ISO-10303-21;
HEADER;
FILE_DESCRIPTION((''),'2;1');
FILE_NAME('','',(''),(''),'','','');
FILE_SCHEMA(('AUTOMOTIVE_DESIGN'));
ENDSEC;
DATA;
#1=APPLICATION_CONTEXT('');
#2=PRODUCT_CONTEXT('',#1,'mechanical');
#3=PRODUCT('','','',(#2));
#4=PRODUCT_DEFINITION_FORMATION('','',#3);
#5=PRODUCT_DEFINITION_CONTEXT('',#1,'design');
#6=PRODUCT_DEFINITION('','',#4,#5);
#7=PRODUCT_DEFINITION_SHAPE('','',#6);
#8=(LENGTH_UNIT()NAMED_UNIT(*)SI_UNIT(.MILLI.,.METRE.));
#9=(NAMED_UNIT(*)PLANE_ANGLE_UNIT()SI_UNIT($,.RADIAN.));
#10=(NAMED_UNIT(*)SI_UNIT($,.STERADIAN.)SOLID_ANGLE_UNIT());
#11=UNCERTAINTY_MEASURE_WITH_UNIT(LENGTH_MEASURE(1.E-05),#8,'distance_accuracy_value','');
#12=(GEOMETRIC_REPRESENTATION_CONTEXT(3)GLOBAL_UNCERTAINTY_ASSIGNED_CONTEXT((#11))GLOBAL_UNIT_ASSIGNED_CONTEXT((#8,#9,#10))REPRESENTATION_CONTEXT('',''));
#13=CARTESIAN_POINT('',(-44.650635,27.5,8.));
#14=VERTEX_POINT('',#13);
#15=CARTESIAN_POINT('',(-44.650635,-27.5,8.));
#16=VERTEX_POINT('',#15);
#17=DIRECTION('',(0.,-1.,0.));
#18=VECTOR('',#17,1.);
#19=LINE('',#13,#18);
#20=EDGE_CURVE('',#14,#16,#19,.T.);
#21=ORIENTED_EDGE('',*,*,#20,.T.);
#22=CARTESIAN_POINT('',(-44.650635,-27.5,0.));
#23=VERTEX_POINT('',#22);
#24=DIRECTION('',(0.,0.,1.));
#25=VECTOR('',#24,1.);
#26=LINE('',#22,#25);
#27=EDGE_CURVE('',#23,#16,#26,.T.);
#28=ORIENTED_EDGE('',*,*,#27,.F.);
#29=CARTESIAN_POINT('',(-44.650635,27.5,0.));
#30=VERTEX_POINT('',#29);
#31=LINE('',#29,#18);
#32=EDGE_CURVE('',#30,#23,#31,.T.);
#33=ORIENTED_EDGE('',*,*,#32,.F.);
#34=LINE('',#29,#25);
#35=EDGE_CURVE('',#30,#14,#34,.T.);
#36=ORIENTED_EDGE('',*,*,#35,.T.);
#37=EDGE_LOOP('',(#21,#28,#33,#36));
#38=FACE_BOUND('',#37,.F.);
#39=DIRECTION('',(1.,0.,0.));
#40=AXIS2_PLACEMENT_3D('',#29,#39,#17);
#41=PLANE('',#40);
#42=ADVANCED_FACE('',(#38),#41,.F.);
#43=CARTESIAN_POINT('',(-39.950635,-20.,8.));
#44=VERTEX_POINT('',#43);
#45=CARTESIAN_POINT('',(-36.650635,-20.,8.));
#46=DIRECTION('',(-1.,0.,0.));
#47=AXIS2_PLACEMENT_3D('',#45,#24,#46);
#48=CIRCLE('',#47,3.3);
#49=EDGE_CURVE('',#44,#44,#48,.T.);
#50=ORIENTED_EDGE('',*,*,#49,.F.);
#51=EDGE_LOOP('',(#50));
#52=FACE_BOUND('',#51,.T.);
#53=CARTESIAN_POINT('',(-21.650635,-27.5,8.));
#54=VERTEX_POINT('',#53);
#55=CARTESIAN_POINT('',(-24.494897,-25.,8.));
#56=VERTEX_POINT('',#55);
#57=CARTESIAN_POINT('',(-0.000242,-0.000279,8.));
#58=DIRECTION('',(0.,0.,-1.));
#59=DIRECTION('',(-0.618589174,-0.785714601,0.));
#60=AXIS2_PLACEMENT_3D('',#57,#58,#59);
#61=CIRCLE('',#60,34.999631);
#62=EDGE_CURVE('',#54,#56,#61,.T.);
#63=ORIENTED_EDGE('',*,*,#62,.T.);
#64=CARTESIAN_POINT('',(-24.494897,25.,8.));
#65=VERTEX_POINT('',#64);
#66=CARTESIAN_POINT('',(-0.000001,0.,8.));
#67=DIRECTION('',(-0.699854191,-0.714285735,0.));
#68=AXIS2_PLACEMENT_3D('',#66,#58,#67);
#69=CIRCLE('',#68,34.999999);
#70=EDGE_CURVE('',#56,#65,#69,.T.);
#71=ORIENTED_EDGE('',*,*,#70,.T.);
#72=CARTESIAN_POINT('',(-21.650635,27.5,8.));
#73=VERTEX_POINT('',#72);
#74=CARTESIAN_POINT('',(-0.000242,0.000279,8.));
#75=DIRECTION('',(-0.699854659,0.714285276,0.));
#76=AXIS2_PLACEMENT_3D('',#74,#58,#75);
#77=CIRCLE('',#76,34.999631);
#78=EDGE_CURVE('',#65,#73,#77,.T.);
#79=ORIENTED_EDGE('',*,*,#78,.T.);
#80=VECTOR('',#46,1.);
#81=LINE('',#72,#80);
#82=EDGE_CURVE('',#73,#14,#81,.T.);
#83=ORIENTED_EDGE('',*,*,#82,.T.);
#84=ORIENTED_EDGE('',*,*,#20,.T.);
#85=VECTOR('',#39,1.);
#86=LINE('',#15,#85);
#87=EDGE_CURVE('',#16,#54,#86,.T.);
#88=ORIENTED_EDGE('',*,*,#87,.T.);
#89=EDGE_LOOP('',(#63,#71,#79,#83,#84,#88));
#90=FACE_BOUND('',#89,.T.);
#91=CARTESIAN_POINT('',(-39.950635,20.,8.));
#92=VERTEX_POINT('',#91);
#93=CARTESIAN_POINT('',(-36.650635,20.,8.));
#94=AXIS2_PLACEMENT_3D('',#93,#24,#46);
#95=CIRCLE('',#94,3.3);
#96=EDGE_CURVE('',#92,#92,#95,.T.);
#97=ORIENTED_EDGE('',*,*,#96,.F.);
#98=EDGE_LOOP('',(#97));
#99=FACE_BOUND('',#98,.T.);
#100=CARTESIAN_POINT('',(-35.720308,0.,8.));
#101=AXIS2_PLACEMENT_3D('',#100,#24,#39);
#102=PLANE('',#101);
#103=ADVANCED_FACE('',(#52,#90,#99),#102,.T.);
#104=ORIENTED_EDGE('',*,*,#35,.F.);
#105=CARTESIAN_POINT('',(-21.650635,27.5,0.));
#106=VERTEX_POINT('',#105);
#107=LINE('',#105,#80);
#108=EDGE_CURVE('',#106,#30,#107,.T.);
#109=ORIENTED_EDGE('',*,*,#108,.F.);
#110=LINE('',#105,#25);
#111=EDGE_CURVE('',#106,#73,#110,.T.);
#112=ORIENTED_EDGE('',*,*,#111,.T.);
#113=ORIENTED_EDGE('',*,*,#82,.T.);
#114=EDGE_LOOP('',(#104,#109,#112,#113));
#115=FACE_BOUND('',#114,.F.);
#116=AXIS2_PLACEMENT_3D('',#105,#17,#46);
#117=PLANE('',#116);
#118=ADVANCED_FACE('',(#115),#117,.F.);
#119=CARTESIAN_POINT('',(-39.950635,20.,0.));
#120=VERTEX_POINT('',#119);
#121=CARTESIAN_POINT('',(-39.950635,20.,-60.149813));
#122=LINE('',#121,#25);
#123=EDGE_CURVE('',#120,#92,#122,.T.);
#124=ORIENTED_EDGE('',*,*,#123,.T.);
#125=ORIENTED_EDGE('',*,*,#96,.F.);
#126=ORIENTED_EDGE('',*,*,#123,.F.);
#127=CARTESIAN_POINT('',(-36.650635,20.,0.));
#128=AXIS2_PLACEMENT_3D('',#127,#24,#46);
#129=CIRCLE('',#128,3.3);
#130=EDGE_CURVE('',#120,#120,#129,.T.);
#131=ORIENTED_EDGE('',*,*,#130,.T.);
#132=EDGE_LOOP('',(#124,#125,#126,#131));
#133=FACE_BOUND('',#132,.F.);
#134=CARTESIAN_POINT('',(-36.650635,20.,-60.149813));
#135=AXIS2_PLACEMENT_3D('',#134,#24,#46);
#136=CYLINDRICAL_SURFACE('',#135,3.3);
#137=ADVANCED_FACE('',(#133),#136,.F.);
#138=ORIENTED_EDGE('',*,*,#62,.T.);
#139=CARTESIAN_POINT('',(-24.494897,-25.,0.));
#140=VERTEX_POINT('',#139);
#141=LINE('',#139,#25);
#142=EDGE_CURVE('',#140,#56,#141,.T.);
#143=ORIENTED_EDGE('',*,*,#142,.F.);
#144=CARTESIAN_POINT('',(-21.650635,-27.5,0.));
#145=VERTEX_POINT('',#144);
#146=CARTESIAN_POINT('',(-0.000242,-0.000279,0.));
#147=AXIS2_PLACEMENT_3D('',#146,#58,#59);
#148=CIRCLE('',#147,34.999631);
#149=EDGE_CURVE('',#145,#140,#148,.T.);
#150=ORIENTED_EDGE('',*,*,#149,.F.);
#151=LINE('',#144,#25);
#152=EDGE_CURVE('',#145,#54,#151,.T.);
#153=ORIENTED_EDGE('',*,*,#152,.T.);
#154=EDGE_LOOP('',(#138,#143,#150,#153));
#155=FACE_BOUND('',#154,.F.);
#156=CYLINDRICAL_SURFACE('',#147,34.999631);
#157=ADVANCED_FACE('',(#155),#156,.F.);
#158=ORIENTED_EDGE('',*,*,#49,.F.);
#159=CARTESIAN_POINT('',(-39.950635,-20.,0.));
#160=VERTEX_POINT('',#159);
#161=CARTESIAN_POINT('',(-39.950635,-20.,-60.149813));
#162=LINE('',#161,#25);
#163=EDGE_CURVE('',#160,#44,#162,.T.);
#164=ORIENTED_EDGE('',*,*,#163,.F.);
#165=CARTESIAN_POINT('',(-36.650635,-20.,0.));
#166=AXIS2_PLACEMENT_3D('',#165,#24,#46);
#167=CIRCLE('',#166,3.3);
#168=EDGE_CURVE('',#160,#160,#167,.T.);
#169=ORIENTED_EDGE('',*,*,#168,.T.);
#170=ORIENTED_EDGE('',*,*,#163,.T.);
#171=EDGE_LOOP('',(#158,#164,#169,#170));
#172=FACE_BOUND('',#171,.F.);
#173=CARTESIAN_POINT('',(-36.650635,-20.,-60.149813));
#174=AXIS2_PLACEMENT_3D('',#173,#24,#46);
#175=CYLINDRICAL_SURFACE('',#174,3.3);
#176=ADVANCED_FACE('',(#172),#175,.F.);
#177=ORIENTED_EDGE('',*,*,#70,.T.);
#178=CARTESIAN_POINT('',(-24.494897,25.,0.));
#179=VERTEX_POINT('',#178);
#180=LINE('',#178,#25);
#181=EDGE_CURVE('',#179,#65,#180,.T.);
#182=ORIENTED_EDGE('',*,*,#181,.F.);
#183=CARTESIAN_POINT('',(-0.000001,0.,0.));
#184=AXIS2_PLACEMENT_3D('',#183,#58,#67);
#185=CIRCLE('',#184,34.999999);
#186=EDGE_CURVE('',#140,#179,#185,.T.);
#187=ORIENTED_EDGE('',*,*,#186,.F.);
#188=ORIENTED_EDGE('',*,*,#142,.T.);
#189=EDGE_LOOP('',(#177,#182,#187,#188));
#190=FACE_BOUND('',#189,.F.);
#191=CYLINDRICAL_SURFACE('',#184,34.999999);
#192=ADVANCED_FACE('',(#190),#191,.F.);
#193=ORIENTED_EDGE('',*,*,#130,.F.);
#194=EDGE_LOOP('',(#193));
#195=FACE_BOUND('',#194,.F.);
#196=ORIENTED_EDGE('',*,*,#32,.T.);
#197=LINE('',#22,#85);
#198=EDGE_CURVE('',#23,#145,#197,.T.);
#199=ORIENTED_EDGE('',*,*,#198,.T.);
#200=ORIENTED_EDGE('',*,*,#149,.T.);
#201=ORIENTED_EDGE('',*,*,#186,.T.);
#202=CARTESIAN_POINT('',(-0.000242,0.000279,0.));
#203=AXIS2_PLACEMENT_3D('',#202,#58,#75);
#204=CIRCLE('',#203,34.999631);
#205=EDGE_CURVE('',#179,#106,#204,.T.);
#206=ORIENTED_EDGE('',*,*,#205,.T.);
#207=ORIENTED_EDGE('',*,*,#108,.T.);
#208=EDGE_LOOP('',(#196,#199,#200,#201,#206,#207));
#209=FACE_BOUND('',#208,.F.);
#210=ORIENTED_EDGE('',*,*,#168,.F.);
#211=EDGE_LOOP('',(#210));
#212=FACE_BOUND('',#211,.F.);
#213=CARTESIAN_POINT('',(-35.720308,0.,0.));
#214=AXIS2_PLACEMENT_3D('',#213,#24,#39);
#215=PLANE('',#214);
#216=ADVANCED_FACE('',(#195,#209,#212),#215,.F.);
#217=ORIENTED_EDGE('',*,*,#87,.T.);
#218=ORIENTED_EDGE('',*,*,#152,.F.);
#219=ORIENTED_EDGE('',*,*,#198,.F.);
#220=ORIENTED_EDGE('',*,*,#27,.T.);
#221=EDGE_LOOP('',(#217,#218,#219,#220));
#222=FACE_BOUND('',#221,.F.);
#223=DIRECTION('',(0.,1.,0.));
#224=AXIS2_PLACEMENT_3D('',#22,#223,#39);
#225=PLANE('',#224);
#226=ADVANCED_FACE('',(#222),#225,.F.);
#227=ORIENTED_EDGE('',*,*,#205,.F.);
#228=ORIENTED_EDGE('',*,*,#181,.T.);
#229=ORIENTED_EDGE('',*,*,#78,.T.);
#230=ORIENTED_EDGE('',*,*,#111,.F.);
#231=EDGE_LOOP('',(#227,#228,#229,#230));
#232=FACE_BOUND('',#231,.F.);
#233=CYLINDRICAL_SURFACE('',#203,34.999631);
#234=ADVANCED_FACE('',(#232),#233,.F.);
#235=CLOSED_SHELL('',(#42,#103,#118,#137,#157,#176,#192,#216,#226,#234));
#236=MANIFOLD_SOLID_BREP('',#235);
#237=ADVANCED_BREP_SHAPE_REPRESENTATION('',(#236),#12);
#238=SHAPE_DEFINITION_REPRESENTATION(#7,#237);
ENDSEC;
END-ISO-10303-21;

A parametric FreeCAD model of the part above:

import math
import FreeCAD as App
import Part
import Sketcher

V = App.Vector
Q = App.Units.Quantity

doc = App.newDocument("Part")
params = doc.addObject("Spreadsheet::Sheet", "Params")
for row, (alias, value) in enumerate([
    ("sketch1_radius", "34.999999 mm"),
    ("sketch1_width", "23 mm"),
    ("sketch1_width2", "23 mm"),
    ("sketch1_height", "55 mm"),
    ("pad1_length", "8 mm"),
    ("sketch2_diameter", "6.6 mm"),
    ("hole_diameter", "6.6 mm"),
], start=1):
    params.set(f"A{row}", alias)
    params.set(f"B{row}", "=" + value)
    params.setAlias(f"B{row}", alias)

body = doc.addObject("PartDesign::Body", "Body")

# Sketch on XY plane
sketch1 = body.newObject("Sketcher::SketchObject", "Sketch")
sketch1.AttachmentSupport = (doc.getObject("XY_Plane"), [""])
sketch1.MapMode = "FlatFace"
sketch1.addGeometry([
    Part.ArcOfCircle(Part.Circle(V(-0.000001, 0, 0), V(0, 0, 1), 34.999999), math.radians(134.415307), math.radians(225.584693)),  # 0
    Part.ArcOfCircle(Part.Circle(V(-0.000242, 0.000279, 0), V(0, 0, 1), 34.999631), math.radians(128.213181), math.radians(134.415344)),  # 1
    Part.LineSegment(V(-21.650635, 27.5, 0), V(-44.650635, 27.5, 0)),  # 2
    Part.LineSegment(V(-44.650635, 27.5, 0), V(-44.650635, -27.5, 0)),  # 3
    Part.LineSegment(V(-44.650635, -27.5, 0), V(-21.650635, -27.5, 0)),  # 4
    Part.ArcOfCircle(Part.Circle(V(-0.000242, -0.000279, 0), V(0, 0, 1), 34.999631), math.radians(-134.415344), math.radians(-128.213181)),  # 5
], False)
sketch1.addConstraint([
    Sketcher.Constraint("Coincident", 0, 1, 1, 2),
    Sketcher.Constraint("Coincident", 1, 1, 2, 1),
    Sketcher.Constraint("Coincident", 2, 2, 3, 1),
    Sketcher.Constraint("Coincident", 3, 2, 4, 1),
    Sketcher.Constraint("Coincident", 4, 2, 5, 2),
    Sketcher.Constraint("Coincident", 5, 1, 0, 2),
    Sketcher.Constraint("Horizontal", 2),
    Sketcher.Constraint("Vertical", 3),
    Sketcher.Constraint("Horizontal", 4),
    Sketcher.Constraint("Coincident", 0, 3, -1, 1),
    Sketcher.Constraint("Radius", 0, Q("34.999999 mm")),
    Sketcher.Constraint("DistanceX", 2, 2, 2, 1, Q("23 mm")),
    Sketcher.Constraint("DistanceX", 4, 1, 4, 2, Q("23 mm")),
    Sketcher.Constraint("DistanceY", 3, 2, 3, 1, Q("55 mm")),
    Sketcher.Constraint("DistanceY", -1, 1, 0, 1, Q("25 mm")),
    Sketcher.Constraint("DistanceY", 5, 1, -1, 1, Q("25 mm")),
    Sketcher.Constraint("DistanceY", -1, 1, 1, 1, Q("27.5 mm")),
    Sketcher.Constraint("Radius", 1, Q("34.999631 mm")),
    Sketcher.Constraint("Radius", 5, Q("34.999631 mm")),
    Sketcher.Constraint("DistanceY", -1, 1, 1, 3, Q("0.000279 mm")),
])
sketch1.setExpression("Constraints[10]", "Params.sketch1_radius")
sketch1.setExpression("Constraints[11]", "Params.sketch1_width")
sketch1.setExpression("Constraints[12]", "Params.sketch1_width2")
sketch1.setExpression("Constraints[13]", "Params.sketch1_height")
pad1 = body.newObject("PartDesign::Pad", "Pad")
pad1.Profile = sketch1
pad1.setExpression("Length", "Params.pad1_length")

# Sketch on XY plane
sketch2 = body.newObject("Sketcher::SketchObject", "Sketch001")
sketch2.AttachmentSupport = (doc.getObject("XY_Plane"), [""])
sketch2.MapMode = "FlatFace"
sketch2.addGeometry([
    Part.Circle(V(-36.7, -20, 0), V(0, 0, 1), 3.3),
    Part.Circle(V(-36.7, 20, 0), V(0, 0, 1), 3.3),
], False)
sketch2.addConstraint([
    Sketcher.Constraint("Equal", 0, 1),
    Sketcher.Constraint("Symmetric", 0, 3, 1, 3, -1),
    Sketcher.Constraint("Diameter", 0, Q("6.6 mm")),
    Sketcher.Constraint("DistanceY", 0, 3, -1, 1, Q("20 mm")),
    Sketcher.Constraint("DistanceX", 0, 3, -1, 1, Q("36.650635 mm")),
])
sketch2.setExpression("Constraints[2]", "Params.sketch2_diameter")
doc.recompute()
hole = body.newObject("PartDesign::Hole", "Hole")
hole.Profile = sketch2
hole.ThreadType = "None"
hole.setExpression("Diameter", "Params.hole_diameter")
hole.DepthType = "ThroughAll"
hole.Reversed = True

doc.recompute()
